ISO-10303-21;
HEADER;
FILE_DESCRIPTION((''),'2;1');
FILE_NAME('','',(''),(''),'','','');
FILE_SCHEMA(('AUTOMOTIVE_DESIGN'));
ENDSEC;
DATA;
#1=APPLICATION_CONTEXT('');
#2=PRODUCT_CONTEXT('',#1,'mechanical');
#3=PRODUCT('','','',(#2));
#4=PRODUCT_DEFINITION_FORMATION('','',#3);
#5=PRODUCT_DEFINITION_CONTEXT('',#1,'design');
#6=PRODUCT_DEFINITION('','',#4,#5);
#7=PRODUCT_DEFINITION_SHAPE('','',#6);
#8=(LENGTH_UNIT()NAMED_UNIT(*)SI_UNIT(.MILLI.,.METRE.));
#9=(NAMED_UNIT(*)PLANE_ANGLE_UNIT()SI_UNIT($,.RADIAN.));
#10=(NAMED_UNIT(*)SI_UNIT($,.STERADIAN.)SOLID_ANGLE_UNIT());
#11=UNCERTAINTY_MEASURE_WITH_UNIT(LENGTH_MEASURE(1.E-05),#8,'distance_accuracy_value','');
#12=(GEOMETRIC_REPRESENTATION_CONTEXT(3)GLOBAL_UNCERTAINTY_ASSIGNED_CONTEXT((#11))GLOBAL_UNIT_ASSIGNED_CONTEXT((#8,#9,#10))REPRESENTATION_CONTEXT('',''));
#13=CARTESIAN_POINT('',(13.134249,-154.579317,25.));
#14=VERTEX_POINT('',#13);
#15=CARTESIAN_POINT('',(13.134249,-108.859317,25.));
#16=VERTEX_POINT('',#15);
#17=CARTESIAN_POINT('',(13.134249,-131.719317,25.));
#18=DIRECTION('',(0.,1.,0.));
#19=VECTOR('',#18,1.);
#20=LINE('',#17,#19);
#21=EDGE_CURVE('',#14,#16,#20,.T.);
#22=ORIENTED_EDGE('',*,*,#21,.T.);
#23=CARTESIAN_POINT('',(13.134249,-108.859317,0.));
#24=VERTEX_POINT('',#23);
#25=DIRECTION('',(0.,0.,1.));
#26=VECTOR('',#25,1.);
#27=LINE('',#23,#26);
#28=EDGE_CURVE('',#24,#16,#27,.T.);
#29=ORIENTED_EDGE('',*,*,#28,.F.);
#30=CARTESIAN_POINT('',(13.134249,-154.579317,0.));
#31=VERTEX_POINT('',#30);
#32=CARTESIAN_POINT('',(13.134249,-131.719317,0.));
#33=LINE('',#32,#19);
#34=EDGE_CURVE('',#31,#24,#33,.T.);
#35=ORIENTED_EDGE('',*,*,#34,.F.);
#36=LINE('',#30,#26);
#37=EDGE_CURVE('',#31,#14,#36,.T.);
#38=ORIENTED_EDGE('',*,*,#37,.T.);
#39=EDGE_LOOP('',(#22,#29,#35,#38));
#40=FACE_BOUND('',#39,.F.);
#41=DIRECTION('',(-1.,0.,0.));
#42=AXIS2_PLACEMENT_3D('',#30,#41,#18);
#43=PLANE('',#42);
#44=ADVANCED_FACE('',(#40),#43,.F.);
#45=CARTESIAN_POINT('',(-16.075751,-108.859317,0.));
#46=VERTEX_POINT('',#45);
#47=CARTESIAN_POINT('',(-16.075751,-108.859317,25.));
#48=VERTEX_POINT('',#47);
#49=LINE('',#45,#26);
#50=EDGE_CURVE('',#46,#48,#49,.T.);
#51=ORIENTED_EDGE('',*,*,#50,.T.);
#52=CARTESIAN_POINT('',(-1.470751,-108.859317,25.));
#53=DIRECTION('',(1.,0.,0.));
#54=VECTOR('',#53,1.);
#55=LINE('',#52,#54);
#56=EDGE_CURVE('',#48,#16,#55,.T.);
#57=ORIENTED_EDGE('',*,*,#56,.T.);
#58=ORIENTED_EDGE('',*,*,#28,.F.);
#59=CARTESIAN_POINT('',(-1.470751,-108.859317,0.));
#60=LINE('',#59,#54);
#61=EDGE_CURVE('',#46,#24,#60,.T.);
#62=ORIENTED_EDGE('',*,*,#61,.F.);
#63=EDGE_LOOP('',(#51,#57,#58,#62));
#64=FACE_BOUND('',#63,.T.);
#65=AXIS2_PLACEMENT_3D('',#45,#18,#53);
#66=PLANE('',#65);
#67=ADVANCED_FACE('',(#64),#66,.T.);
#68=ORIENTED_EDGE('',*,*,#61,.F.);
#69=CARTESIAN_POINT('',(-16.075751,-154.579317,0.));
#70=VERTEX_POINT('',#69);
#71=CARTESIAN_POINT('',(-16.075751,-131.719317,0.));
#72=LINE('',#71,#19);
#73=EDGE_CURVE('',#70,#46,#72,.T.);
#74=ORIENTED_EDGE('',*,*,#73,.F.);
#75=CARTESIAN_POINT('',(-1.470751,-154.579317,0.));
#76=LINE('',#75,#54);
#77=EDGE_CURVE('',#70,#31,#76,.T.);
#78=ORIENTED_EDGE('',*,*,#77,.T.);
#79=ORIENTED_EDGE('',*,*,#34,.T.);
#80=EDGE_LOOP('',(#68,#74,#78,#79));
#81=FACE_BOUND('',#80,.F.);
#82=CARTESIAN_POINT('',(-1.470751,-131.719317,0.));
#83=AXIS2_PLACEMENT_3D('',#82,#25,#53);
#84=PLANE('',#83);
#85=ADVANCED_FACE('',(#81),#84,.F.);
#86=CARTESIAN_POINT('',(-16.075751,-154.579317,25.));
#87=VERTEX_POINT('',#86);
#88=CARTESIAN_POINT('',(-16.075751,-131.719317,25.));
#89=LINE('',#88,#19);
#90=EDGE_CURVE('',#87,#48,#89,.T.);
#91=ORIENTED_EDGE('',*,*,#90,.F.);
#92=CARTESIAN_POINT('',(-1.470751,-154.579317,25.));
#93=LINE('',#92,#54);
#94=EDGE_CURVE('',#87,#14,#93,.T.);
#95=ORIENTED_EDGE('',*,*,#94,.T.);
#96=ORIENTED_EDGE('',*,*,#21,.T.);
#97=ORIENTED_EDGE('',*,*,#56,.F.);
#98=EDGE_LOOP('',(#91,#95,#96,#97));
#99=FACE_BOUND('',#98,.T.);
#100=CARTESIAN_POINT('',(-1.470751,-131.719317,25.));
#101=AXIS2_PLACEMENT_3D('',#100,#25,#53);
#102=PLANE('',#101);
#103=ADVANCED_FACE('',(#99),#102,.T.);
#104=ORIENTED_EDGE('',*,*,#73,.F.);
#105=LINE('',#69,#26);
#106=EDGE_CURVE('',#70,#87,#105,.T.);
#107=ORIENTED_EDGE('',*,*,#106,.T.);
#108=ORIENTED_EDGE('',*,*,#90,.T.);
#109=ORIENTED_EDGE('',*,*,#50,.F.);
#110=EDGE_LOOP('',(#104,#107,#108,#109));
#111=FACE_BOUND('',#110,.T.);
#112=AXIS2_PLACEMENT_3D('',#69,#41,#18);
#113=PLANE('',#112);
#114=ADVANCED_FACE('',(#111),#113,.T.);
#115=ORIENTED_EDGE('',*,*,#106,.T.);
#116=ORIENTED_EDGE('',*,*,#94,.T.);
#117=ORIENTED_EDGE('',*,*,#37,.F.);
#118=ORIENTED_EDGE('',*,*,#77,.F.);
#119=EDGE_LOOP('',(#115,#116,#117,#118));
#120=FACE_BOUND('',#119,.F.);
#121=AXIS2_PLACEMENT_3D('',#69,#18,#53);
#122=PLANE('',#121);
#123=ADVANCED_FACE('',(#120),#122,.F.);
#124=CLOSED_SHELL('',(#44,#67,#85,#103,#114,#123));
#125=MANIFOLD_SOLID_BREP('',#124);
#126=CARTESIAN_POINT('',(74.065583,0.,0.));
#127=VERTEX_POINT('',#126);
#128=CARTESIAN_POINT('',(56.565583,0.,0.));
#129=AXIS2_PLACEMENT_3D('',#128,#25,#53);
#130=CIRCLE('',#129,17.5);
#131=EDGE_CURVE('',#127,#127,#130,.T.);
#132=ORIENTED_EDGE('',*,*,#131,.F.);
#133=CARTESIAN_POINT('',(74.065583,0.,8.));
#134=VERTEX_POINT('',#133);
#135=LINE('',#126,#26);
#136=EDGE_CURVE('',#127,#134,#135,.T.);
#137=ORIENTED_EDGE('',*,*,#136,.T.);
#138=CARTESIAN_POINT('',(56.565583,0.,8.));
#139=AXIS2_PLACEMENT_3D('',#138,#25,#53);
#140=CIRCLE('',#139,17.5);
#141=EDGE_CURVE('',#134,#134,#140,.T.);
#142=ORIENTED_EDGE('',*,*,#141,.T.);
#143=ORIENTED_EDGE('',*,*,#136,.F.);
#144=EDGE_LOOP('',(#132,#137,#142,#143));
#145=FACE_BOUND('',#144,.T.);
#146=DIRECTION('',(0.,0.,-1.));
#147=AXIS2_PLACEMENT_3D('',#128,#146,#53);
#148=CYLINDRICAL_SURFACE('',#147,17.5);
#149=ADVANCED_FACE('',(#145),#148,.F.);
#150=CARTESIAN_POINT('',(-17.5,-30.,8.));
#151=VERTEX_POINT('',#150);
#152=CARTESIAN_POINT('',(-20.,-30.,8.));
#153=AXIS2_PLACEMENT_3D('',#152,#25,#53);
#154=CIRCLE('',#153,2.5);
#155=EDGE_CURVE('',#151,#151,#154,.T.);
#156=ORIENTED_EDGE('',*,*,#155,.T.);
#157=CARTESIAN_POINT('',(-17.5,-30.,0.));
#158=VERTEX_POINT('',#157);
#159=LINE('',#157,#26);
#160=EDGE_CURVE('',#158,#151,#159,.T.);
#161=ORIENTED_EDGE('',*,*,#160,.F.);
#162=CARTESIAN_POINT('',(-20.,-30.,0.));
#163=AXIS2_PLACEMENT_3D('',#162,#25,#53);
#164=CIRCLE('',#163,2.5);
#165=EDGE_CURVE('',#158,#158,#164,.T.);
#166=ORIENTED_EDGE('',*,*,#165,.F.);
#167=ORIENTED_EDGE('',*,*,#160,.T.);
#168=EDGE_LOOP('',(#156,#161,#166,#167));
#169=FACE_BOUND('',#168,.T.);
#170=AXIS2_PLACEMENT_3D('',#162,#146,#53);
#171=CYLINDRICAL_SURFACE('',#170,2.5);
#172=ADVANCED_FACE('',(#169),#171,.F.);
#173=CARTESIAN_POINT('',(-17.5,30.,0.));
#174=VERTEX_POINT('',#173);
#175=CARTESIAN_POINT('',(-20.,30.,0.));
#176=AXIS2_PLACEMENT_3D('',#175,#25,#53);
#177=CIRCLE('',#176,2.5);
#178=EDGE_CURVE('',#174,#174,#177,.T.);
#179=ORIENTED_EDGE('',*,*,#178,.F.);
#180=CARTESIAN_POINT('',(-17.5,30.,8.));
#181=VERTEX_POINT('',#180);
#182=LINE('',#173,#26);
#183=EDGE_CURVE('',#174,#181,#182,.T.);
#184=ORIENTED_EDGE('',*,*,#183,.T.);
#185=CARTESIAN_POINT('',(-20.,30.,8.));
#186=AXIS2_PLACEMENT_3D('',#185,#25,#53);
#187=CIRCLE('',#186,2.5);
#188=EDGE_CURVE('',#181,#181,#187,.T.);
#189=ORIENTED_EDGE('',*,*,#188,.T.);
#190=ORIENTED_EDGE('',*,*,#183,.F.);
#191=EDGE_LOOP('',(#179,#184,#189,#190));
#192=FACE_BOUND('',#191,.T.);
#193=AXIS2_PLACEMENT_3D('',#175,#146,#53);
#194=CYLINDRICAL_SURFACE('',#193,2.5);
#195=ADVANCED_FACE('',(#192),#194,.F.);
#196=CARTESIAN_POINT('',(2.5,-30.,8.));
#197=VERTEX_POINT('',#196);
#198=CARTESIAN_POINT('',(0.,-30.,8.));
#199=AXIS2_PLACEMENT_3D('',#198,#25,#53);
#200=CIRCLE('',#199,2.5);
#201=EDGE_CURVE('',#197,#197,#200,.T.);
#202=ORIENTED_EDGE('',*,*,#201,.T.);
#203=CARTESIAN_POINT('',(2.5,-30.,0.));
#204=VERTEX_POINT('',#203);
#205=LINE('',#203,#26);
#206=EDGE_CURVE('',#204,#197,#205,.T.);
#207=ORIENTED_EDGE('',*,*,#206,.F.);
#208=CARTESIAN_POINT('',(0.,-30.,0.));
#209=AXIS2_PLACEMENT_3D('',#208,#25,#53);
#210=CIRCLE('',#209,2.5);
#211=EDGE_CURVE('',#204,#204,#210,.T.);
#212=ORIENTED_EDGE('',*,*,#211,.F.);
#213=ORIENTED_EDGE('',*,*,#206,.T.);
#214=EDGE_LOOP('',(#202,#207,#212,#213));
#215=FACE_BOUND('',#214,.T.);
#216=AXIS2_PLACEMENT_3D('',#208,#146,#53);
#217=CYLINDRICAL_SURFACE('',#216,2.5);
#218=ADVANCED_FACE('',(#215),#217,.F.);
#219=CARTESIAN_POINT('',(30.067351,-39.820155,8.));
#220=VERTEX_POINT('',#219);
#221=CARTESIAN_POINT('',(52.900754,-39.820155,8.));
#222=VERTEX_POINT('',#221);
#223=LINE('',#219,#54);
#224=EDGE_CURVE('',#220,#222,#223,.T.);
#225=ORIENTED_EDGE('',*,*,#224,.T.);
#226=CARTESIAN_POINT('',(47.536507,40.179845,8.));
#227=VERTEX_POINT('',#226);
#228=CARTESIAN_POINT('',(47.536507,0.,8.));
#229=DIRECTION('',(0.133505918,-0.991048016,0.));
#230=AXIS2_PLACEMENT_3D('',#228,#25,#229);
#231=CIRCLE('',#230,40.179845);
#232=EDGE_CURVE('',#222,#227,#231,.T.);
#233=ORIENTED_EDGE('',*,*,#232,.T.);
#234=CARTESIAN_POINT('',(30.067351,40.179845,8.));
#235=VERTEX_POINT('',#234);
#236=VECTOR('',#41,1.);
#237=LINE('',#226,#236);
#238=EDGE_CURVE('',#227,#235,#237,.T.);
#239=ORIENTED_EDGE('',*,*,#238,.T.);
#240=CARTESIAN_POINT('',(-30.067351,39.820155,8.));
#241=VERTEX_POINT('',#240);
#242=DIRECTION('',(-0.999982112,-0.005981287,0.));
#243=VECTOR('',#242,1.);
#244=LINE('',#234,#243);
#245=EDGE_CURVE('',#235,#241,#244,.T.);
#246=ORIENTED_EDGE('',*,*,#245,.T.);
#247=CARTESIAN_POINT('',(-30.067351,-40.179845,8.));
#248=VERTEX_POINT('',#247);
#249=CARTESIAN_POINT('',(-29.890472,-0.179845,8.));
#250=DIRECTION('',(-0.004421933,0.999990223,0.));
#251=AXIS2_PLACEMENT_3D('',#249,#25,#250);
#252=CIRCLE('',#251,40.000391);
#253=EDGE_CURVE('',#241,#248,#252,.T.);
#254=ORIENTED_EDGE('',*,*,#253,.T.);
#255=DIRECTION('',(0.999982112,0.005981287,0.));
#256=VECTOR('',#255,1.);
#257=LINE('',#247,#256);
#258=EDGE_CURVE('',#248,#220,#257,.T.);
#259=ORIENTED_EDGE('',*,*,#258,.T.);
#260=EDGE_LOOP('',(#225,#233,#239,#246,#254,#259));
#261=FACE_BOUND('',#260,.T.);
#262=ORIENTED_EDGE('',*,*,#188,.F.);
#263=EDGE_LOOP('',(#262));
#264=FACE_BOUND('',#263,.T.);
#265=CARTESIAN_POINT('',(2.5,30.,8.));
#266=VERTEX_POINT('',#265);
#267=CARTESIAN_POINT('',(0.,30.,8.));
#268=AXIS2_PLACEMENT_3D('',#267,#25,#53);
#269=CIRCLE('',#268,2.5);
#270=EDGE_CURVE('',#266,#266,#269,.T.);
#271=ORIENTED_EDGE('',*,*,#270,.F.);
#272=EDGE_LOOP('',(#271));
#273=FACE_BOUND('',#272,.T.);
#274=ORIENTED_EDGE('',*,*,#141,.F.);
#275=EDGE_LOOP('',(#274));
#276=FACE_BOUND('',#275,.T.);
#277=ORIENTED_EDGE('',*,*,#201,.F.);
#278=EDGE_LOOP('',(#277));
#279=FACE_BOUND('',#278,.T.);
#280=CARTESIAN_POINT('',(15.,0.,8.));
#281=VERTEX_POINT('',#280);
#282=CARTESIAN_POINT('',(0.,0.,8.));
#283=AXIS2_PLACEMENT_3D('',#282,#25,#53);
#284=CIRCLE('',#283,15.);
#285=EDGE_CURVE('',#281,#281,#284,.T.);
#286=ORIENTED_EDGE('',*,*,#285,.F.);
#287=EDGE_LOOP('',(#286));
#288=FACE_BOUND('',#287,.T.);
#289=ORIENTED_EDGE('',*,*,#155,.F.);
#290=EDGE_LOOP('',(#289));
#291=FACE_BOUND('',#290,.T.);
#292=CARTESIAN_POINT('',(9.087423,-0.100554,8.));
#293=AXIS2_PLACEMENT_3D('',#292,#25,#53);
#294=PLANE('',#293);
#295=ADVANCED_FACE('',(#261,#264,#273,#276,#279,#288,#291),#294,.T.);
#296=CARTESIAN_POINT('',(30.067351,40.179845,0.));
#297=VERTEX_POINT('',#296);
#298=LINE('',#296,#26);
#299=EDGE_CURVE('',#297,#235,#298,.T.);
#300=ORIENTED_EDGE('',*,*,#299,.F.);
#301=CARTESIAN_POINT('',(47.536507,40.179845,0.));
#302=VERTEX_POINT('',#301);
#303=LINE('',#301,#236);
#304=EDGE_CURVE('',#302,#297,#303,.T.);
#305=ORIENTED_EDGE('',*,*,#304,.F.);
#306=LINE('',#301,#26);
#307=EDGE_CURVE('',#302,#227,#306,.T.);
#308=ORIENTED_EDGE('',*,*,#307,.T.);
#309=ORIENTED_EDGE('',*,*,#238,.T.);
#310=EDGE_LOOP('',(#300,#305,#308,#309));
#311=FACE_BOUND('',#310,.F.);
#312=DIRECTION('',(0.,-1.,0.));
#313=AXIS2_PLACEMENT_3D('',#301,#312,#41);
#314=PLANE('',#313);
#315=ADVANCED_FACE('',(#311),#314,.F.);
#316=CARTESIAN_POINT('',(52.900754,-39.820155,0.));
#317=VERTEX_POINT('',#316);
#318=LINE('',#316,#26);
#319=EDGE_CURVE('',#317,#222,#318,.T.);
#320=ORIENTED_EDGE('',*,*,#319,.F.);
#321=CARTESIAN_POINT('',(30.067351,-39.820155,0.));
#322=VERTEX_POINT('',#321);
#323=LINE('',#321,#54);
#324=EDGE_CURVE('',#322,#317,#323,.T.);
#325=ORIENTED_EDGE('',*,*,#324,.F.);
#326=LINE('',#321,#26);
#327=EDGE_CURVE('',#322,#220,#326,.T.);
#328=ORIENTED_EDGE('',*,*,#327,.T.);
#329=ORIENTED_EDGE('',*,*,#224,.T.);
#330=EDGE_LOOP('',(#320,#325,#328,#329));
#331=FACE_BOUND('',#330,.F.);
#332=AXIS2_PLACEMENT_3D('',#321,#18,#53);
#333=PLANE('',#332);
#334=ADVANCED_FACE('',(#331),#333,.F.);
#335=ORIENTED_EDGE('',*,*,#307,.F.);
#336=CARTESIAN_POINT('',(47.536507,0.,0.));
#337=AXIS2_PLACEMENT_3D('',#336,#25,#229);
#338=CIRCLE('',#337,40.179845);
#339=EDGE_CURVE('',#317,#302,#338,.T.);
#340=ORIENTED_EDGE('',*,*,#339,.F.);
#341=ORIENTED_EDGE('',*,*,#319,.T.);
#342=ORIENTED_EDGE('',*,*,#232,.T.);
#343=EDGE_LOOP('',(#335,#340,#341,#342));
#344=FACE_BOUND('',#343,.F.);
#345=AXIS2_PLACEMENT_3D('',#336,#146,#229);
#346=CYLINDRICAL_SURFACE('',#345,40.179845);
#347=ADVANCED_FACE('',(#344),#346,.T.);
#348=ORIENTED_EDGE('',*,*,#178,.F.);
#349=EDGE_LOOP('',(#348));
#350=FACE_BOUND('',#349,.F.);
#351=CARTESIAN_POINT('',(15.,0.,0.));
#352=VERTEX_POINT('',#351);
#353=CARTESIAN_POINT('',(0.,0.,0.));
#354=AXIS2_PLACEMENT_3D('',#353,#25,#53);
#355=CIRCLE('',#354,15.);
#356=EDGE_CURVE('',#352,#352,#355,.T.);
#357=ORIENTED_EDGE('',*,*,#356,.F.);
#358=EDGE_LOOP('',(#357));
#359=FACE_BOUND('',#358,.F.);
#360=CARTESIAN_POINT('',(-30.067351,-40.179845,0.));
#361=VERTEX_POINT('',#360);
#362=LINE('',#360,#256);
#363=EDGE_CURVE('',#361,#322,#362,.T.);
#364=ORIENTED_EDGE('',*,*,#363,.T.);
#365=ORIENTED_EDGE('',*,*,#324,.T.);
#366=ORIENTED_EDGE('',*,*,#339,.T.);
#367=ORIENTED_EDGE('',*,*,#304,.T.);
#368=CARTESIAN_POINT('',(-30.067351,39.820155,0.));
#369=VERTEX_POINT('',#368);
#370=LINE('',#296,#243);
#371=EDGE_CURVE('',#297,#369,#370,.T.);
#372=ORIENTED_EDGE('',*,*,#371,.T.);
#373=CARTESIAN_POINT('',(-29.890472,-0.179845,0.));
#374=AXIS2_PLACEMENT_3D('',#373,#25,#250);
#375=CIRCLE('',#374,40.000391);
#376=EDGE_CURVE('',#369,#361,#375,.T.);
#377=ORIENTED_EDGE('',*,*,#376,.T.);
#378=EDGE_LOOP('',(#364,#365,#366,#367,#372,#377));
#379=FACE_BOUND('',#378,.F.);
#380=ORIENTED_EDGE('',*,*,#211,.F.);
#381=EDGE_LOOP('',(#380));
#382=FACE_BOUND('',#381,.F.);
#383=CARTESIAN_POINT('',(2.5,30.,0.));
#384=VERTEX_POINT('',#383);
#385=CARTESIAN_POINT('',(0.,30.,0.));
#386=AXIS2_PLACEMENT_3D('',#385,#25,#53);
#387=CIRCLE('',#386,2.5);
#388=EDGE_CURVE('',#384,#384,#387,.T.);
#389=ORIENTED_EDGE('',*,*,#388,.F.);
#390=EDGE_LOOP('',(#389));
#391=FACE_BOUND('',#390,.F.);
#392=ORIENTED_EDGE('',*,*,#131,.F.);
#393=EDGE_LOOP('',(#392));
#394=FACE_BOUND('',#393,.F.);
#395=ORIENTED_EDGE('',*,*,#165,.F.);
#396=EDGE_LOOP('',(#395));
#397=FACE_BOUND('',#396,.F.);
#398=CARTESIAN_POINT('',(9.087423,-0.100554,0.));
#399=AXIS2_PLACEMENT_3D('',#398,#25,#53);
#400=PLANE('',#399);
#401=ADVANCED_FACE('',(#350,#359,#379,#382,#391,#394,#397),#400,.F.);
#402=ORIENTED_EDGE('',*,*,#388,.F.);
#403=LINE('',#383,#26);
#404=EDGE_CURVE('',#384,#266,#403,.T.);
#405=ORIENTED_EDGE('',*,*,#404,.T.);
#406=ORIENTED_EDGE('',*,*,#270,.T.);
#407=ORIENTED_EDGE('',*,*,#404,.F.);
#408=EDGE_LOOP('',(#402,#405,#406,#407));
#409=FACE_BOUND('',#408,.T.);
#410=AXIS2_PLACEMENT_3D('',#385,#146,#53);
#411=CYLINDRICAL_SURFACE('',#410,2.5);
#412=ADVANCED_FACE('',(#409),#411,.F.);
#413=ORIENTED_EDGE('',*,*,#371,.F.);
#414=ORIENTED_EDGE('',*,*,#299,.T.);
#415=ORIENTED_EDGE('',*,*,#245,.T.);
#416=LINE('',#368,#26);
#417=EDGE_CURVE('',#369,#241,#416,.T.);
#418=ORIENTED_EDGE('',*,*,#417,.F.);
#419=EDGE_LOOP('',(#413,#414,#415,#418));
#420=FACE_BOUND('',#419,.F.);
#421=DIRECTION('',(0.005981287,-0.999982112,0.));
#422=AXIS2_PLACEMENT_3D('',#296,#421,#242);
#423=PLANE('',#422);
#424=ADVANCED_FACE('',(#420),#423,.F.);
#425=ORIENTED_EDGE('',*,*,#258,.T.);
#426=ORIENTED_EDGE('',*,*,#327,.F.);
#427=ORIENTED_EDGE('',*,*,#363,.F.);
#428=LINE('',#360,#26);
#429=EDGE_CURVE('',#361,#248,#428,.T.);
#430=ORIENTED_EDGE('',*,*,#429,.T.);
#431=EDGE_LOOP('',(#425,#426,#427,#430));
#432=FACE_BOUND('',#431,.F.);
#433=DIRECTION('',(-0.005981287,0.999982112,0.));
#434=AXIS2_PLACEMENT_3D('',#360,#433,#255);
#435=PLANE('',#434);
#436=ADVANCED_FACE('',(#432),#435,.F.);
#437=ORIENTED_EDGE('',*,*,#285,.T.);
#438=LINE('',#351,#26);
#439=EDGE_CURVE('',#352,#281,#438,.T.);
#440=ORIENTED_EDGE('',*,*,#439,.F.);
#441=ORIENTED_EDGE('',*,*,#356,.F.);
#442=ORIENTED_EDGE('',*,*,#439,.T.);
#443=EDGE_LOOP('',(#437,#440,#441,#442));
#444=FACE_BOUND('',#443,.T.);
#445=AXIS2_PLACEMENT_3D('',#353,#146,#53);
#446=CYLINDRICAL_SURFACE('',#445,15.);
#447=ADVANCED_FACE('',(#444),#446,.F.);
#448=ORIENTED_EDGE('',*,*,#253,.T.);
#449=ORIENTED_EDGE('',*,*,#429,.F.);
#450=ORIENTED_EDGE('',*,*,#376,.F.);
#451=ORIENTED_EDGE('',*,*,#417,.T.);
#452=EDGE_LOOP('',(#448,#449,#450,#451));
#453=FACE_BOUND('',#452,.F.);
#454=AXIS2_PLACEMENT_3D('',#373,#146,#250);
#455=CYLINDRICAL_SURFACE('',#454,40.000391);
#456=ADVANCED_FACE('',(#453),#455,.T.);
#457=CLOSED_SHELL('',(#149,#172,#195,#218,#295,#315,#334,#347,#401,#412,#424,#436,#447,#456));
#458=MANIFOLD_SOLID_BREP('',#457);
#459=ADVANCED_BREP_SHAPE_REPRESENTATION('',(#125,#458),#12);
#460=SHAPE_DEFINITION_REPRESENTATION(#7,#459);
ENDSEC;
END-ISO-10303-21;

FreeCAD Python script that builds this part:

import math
import FreeCAD as App
import Part
import Sketcher

V = App.Vector
Q = App.Units.Quantity

doc = App.newDocument("Part")
body = doc.addObject("PartDesign::Body", "Body")

# Sketch on XY plane
sketch1 = body.newObject("Sketcher::SketchObject", "Sketch")
sketch1.AttachmentSupport = (doc.getObject("XY_Plane"), [""])
sketch1.MapMode = "FlatFace"
sketch1.addGeometry([
    Part.LineSegment(V(47.536507, 40.179845, 0), V(30.067351, 40.179845, 0)),  # 0
    Part.LineSegment(V(30.067351, 40.179845, 0), V(-30.067351, 39.820155, 0)),  # 1
    Part.ArcOfCircle(Part.Circle(V(-29.890472, -0.179845, 0), V(0, 0, 1), 40.000391), math.radians(90.253359), math.radians(269.746641)),  # 2
    Part.LineSegment(V(-30.067351, -40.179845, 0), V(30.067351, -39.820155, 0)),  # 3
    Part.LineSegment(V(30.067351, -39.820155, 0), V(52.900754, -39.820155, 0)),  # 4
    Part.ArcOfCircle(Part.Circle(V(47.536507, 0, 0), V(0, 0, 1), 40.179845), math.radians(-82.327767), math.radians(90)),  # 5
    Part.Circle(V(-20, -30, 0), V(0, 0, 1), 2.5),  # 6
    Part.Circle(V(0, -30, 0), V(0, 0, 1), 2.5),  # 7
    Part.Circle(V(0, 0, 0), V(0, 0, 1), 15),  # 8
    Part.Circle(V(-20, 30, 0), V(0, 0, 1), 2.5),  # 9
    Part.Circle(V(0, 30, 0), V(0, 0, 1), 2.5),  # 10
    Part.Circle(V(56.565583, 0, 0), V(0, 0, 1), 17.5),  # 11
], False)
sketch1.addConstraint([
    Sketcher.Constraint("Coincident", 0, 2, 1, 1),
    Sketcher.Constraint("Coincident", 1, 2, 2, 1),
    Sketcher.Constraint("Coincident", 2, 2, 3, 1),
    Sketcher.Constraint("Coincident", 3, 2, 4, 1),
    Sketcher.Constraint("Coincident", 4, 2, 5, 1),
    Sketcher.Constraint("Tangent", 5, 2, 0, 1),
    Sketcher.Constraint("Horizontal", 0),
    Sketcher.Constraint("Horizontal", 4),
    Sketcher.Constraint("Coincident", 8, 3, -1, 1),
    Sketcher.Constraint("Equal", 6, 7),
    Sketcher.Constraint("Equal", 7, 9),
    Sketcher.Constraint("Equal", 9, 10),
    Sketcher.Constraint("Symmetric", 7, 3, 10, 3, -1, 1),
    Sketcher.Constraint("Symmetric", 0, 2, 2, 2, -1, 1),
    Sketcher.Constraint("Symmetric", 1, 2, 3, 2, -1, 1),
    Sketcher.Constraint("Symmetric", 6, 3, 9, 3, -1),
    Sketcher.Constraint("PointOnObject", 5, 3, -1),
    Sketcher.Constraint("PointOnObject", 7, 3, -2),
    Sketcher.Constraint("PointOnObject", 11, 3, -1),
    Sketcher.Constraint("Horizontal", 6, 3, 7, 3),
    Sketcher.Constraint("Vertical", 1, 2, 2, 2),
    Sketcher.Constraint("Diameter", 6, Q("5 mm")),
    Sketcher.Constraint("Diameter", 8, Q("30 mm")),
    Sketcher.Constraint("Diameter", 11, Q("35 mm")),
    Sketcher.Constraint("DistanceX", 6, 3, -1, 1, Q("20 mm")),
    Sketcher.Constraint("DistanceY", 6, 3, -1, 1, Q("30 mm")),
    Sketcher.Constraint("DistanceY", 2, 3, 1, 2, Q("40 mm")),
    Sketcher.Constraint("Radius", 2, Q("40.000391 mm")),
    Sketcher.Constraint("Radius", 5, Q("40.179845 mm")),
    Sketcher.Constraint("DistanceX", 0, 2, 0, 1, Q("17.469156 mm")),
    Sketcher.Constraint("DistanceX", 2, 3, -1, 1, Q("29.890472 mm")),
    Sketcher.Constraint("DistanceX", 0, 2, 11, 3, Q("26.498232 mm")),
])
pad1 = body.newObject("PartDesign::Pad", "Pad")
pad1.Profile = sketch1
pad1.Length = 8
body2 = doc.addObject("PartDesign::Body", "Body001")

# Sketch on XY plane
sketch2 = body2.newObject("Sketcher::SketchObject", "Sketch001")
sketch2.AttachmentSupport = (doc.getObject("XY_Plane001"), [""])
sketch2.MapMode = "FlatFace"
sketch2.addGeometry([
    Part.LineSegment(V(-16, -109, 0), V(-16, -155, 0)),
    Part.LineSegment(V(-16, -155, 0), V(13, -155, 0)),
    Part.LineSegment(V(13, -155, 0), V(13, -109, 0)),
    Part.LineSegment(V(13, -109, 0), V(-16, -109, 0)),
], False)
sketch2.addConstraint([
    Sketcher.Constraint("Coincident", 0, 2, 1, 1),
    Sketcher.Constraint("Coincident", 1, 2, 2, 1),
    Sketcher.Constraint("Coincident", 2, 2, 3, 1),
    Sketcher.Constraint("Coincident", 3, 2, 0, 1),
    Sketcher.Constraint("Vertical", 0),
    Sketcher.Constraint("Horizontal", 1),
    Sketcher.Constraint("Vertical", 2),
    Sketcher.Constraint("Horizontal", 3),
    Sketcher.Constraint("DistanceX", 1, 1, 1, 2, Q("29.21 mm")),
    Sketcher.Constraint("DistanceY", 0, 2, 0, 1, Q("45.72 mm")),
    Sketcher.Constraint("DistanceX", 0, 2, -1, 1, Q("16.075751 mm")),
    Sketcher.Constraint("DistanceY", 0, 2, -1, 1, Q("154.579317 mm")),
])
pad2 = body2.newObject("PartDesign::Pad", "Pad001")
pad2.Profile = sketch2
pad2.Length = 25

doc.recompute()
